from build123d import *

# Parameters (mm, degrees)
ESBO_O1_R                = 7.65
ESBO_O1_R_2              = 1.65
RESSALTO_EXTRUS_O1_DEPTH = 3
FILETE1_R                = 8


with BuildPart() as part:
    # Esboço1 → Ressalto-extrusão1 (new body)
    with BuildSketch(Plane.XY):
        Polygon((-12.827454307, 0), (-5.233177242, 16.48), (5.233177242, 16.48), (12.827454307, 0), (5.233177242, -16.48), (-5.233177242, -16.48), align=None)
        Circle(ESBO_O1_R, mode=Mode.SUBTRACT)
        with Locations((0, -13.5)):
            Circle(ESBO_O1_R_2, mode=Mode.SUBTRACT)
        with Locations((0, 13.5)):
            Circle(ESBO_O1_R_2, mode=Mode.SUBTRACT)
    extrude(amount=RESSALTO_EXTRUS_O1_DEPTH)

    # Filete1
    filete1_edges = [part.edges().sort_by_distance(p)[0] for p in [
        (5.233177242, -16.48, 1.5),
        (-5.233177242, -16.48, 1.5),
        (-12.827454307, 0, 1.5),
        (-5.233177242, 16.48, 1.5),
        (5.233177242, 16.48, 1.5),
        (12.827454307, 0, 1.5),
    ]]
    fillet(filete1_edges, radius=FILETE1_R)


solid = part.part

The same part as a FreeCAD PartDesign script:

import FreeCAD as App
import Part
import Sketcher
from FreeCAD import Vector


def edges_at(feature, points):
    """Names of the edges that pass closest to the given points."""
    edges = feature.Shape.Edges
    near = lambda p: min(range(len(edges)), key=lambda i: edges[i].distToShape(Part.Vertex(*p))[0])
    return sorted({f"Edge{near(p) + 1}" for p in points})


def add_polygon(sketch, points):
    """Adds a closed chain of lines whose ends are joined by coincident constraints."""
    first, n = sketch.GeometryCount, len(points)
    for a, b in zip(points, points[1:] + points[:1]):
        sketch.addGeometry(Part.LineSegment(App.Vector(*a, 0), App.Vector(*b, 0)), False)
    for i in range(n):
        sketch.addConstraint(Sketcher.Constraint("Coincident", first + i, 2, first + (i + 1) % n, 1))

doc = App.newDocument("Part")
body = doc.addObject("PartDesign::Body", "Body")

sketch1 = body.newObject("Sketcher::SketchObject", "Sketch")
sketch1.AttachmentSupport = (doc.getObject("XY_Plane"), [""])
sketch1.MapMode = "FlatFace"
add_polygon(sketch1, [(-5.2, 16.5), (-12.8, 0), (-5.2, -16.5), (5.2, -16.5), (12.8, 0), (5.2, 16.5)])
sketch1.addGeometry(Part.Circle(Vector(0, -13.5, 0), Vector(0, 0, 1), 1.6), False)
sketch1.addGeometry(Part.Circle(Vector(0, 0, 0), Vector(0, 0, 1), 7.7), False)
sketch1.addGeometry(Part.Circle(Vector(0, 13.5, 0), Vector(0, 0, 1), 1.6), False)
sketch1.addConstraint([
    Sketcher.Constraint("Horizontal", 2),
    Sketcher.Constraint("Horizontal", 5),
    Sketcher.Constraint("Coincident", 7, 3, -1, 1),
    Sketcher.Constraint("Equal", 6, 8),
    Sketcher.Constraint("Symmetric", 6, 3, 8, 3, -1, 1),
    Sketcher.Constraint("Symmetric", 0, 2, 3, 2, -1, 1),
    Sketcher.Constraint("Symmetric", 1, 2, 4, 2, -1, 1),
    Sketcher.Constraint("PointOnObject", 6, 3, -2),
    Sketcher.Constraint("PointOnObject", 0, 2, -1),
    Sketcher.Constraint("Parallel", 0, 3),
    Sketcher.Constraint("Vertical", 2, 2, 4, 2),
    Sketcher.Constraint("Diameter", 6, 3.3),
    Sketcher.Constraint("Diameter", 7, 15.3),
    Sketcher.Constraint("DistanceY", 6, 3, 8, 3, 27.0),
    Sketcher.Constraint("DistanceY", 1, 2, -1, 1, 16.48),
    Sketcher.Constraint("DistanceX", 2, 1, 2, 2, 10.466354),
    Sketcher.Constraint("DistanceX", 0, 2, 2, 2, 18.060632),
])
pad1 = body.newObject("PartDesign::Pad", "Pad")
pad1.Profile = sketch1
pad1.Length = 3
doc.recompute()

fillet = body.newObject("PartDesign::Fillet", "Fillet")
fillet.Base = (pad1, edges_at(pad1, [
    (5.233, -16.48, 1.5),
    (-5.233, -16.48, 1.5),
    (-12.827, 0, 1.5),
    (-5.233, 16.48, 1.5),
    (5.233, 16.48, 1.5),
    (12.827, 0, 1.5),
]))
fillet.Radius = 8

doc.recompute()
